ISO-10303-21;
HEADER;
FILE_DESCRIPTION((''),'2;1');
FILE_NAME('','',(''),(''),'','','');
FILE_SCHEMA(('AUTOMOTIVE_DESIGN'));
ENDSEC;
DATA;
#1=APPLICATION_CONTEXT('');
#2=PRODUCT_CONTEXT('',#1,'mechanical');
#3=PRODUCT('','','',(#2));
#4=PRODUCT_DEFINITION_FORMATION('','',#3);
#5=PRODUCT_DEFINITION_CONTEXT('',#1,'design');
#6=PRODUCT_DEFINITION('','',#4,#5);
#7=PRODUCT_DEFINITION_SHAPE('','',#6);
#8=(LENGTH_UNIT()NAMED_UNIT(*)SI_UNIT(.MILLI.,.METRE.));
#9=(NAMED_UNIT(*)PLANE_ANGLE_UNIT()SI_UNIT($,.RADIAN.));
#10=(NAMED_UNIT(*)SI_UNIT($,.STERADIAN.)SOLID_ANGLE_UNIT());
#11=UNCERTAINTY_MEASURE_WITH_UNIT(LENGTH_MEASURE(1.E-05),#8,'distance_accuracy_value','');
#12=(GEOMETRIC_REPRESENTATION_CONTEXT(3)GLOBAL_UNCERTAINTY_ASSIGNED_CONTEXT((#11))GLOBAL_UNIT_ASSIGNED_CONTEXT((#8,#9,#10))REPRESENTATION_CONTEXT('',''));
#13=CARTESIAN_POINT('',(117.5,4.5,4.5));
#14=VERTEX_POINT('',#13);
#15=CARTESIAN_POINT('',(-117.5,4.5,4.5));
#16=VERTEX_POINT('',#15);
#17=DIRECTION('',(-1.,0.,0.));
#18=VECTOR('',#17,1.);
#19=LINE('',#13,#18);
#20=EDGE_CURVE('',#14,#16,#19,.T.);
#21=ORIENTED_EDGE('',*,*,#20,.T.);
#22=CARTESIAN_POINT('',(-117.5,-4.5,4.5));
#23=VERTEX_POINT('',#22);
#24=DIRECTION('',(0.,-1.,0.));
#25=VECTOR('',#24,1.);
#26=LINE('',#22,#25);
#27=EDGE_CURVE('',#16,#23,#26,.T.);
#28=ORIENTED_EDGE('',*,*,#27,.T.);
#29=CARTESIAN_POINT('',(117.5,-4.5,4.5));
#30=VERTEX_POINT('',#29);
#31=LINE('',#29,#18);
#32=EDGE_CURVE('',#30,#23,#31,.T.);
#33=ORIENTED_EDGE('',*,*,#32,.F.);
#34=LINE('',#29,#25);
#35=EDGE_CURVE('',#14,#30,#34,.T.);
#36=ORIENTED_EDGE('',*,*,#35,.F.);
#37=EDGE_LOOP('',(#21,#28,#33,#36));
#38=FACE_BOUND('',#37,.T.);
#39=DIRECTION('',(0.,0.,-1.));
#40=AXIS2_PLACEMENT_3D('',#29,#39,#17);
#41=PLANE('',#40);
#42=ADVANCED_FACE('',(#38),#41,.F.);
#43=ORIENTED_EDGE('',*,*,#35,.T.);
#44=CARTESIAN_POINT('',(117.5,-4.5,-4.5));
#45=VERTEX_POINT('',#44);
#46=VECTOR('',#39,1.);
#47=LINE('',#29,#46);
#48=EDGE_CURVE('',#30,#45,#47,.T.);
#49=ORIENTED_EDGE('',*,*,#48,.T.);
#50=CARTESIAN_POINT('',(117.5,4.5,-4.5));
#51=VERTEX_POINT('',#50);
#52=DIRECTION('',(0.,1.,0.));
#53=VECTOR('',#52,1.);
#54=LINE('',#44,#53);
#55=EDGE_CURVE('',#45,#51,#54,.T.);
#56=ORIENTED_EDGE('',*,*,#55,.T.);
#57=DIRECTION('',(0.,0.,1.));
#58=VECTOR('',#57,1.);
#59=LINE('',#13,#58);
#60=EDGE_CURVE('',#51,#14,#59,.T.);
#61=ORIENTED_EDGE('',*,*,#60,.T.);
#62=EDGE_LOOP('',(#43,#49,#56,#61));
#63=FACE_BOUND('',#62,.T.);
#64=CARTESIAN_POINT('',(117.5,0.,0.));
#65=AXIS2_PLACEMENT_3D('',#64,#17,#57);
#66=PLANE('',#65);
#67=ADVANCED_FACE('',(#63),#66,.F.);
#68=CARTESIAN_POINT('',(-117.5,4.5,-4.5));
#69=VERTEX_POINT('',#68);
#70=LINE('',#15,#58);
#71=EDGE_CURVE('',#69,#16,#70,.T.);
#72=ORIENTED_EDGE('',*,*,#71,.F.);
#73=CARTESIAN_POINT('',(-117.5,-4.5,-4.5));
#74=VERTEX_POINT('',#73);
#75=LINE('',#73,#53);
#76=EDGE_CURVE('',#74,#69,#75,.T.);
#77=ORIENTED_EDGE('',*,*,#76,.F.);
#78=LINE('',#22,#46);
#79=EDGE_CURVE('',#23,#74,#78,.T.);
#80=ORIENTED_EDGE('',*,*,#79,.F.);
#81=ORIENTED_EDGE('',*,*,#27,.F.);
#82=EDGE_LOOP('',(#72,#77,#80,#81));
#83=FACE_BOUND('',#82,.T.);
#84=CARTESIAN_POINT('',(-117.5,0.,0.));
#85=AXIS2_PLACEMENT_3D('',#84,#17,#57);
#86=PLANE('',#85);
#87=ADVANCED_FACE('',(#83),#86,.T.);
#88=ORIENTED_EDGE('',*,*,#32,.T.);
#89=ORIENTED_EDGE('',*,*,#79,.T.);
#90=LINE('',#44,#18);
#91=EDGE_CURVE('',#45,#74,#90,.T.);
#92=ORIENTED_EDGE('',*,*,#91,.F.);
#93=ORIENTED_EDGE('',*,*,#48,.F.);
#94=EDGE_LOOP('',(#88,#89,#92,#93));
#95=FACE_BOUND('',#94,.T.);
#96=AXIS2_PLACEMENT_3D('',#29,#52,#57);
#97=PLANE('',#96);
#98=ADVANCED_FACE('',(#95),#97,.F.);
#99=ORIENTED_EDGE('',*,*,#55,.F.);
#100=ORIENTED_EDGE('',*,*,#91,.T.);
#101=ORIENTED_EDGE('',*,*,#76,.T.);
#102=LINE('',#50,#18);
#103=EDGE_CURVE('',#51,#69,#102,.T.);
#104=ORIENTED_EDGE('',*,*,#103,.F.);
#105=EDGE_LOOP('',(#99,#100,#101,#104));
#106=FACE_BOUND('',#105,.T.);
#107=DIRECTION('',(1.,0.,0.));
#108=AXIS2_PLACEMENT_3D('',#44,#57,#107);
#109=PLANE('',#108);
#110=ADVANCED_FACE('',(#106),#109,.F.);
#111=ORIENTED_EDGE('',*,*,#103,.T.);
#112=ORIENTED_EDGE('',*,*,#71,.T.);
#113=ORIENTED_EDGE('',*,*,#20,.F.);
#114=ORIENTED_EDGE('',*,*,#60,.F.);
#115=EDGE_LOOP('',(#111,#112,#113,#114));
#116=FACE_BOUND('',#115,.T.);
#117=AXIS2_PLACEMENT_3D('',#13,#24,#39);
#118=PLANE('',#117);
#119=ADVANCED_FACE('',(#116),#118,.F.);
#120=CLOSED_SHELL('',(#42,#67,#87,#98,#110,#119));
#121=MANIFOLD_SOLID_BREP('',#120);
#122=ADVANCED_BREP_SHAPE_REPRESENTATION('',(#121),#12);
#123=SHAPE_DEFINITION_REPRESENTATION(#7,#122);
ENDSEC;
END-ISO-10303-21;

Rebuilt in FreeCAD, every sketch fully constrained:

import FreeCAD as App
import Part
import Sketcher

V = App.Vector
Q = App.Units.Quantity


def add_polygon(sketch, points):
    """Adds a closed chain of lines whose ends are joined by coincident constraints."""
    first, n = sketch.GeometryCount, len(points)
    for a, b in zip(points, points[1:] + points[:1]):
        sketch.addGeometry(Part.LineSegment(App.Vector(*a, 0), App.Vector(*b, 0)), False)
    for i in range(n):
        sketch.addConstraint(Sketcher.Constraint("Coincident", first + i, 2, first + (i + 1) % n, 1))

doc = App.newDocument("Part")
body = doc.addObject("PartDesign::Body", "Body")

# Sketch on YZ plane
sketch1 = body.newObject("Sketcher::SketchObject", "Sketch")
sketch1.AttachmentSupport = (doc.getObject("YZ_Plane"), [""])
sketch1.MapMode = "FlatFace"
add_polygon(sketch1, [(4, 4), (-4, 4), (-4, -4), (4, -4)])  # lines 0-3
sketch1.addConstraint([
    Sketcher.Constraint("Horizontal", 0),
    Sketcher.Constraint("Vertical", 1),
    Sketcher.Constraint("Horizontal", 2),
    Sketcher.Constraint("Vertical", 3),
    Sketcher.Constraint("Symmetric", 0, 2, 2, 2, -1, 1),
    Sketcher.Constraint("Equal", 2, 1),
    Sketcher.Constraint("DistanceX", 0, 2, 0, 1, Q("9 mm")),
])
pad1 = body.newObject("PartDesign::Pad", "Pad")
pad1.Profile = sketch1
pad1.Type = "TwoLengths"
pad1.Length = 117.5
pad1.Length2 = 117.5

doc.recompute()
